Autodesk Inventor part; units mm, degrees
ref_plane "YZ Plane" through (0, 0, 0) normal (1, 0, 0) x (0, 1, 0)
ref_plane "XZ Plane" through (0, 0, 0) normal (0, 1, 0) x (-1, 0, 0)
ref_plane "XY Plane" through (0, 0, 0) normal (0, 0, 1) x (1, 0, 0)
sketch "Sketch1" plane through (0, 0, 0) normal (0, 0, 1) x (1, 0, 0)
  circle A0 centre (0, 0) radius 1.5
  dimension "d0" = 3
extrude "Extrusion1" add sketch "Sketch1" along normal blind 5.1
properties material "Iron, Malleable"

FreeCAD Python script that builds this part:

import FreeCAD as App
import Part
import Sketcher
from FreeCAD import Vector
Q = App.Units.Quantity

doc = App.newDocument("Part")
body = doc.addObject("PartDesign::Body", "Body")

# Sketch on XY plane
sketch1 = body.newObject("Sketcher::SketchObject", "Sketch")
sketch1.AttachmentSupport = (doc.getObject("XY_Plane"), [""])
sketch1.MapMode = "FlatFace"
sketch1.addGeometry(Part.Circle(Vector(0, 0, 0), Vector(0, 0, 1), 1.5), False)
sketch1.addConstraint(Sketcher.Constraint("Coincident", 0, 3, -1, 1))
sketch1.addConstraint(Sketcher.Constraint("Diameter", 0, Q("3 mm")))
pad1 = body.newObject("PartDesign::Pad", "Pad")
pad1.Profile = sketch1
pad1.Length = 5.1

doc.recompute()
